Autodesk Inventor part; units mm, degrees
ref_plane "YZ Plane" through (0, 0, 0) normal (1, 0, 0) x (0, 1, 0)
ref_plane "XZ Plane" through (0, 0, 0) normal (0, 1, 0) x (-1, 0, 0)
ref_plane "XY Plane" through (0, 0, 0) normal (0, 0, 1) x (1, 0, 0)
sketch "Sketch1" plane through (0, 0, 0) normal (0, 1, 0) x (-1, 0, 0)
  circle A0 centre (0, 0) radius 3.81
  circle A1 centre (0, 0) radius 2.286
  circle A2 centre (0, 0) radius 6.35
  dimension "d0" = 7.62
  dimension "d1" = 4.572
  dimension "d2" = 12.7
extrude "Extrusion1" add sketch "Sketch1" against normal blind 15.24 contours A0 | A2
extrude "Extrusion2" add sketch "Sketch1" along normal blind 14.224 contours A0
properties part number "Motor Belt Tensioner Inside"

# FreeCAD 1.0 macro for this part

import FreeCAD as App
import Part
import Sketcher
from FreeCAD import Vector
Q = App.Units.Quantity

doc = App.newDocument("Part")
params = doc.addObject("Spreadsheet::Sheet", "Params")
for row, (alias, value) in enumerate([
    ("sketch1_diameter", "0.5 in"),
    ("sketch1_diameter2", "0.18 in"),
    ("pad1_length", "0.6 in"),
    ("sketch2_diameter", "0.3 in"),
    ("sketch2_diameter2", "0.18 in"),
    ("pad2_length", "0.56 in"),
], start=1):
    params.set(f"A{row}", alias)
    params.set(f"B{row}", "=" + value)
    params.setAlias(f"B{row}", alias)

body = doc.addObject("PartDesign::Body", "Body")

# Sketch on XZ plane
sketch1 = body.newObject("Sketcher::SketchObject", "Sketch")
sketch1.AttachmentSupport = (doc.getObject("XZ_Plane"), [""])
sketch1.MapMode = "FlatFace"
sketch1.addGeometry([
    Part.Circle(Vector(0, 0, 0), Vector(0, 0, 1), 6.35),
    Part.Circle(Vector(0, 0, 0), Vector(0, 0, 1), 2.286),
], False)
sketch1.addConstraint([
    Sketcher.Constraint("Coincident", 0, 3, -1, 1),
    Sketcher.Constraint("Coincident", 1, 3, -1, 1),
    Sketcher.Constraint("Diameter", 0, Q("0.5 in")),
    Sketcher.Constraint("Diameter", 1, Q("0.18 in")),
])
sketch1.setExpression("Constraints[2]", "Params.sketch1_diameter")
sketch1.setExpression("Constraints[3]", "Params.sketch1_diameter2")
pad1 = body.newObject("PartDesign::Pad", "Pad")
pad1.Profile = sketch1
pad1.setExpression("Length", "Params.pad1_length")

# Sketch on XZ plane
sketch2 = body.newObject("Sketcher::SketchObject", "Sketch001")
sketch2.AttachmentSupport = (doc.getObject("XZ_Plane"), [""])
sketch2.MapMode = "FlatFace"
sketch2.addGeometry([
    Part.Circle(Vector(0, 0, 0), Vector(0, 0, 1), 3.81),
    Part.Circle(Vector(0, 0, 0), Vector(0, 0, 1), 2.286),
], False)
sketch2.addConstraint([
    Sketcher.Constraint("Coincident", 0, 3, -1, 1),
    Sketcher.Constraint("Coincident", 1, 3, -1, 1),
    Sketcher.Constraint("Diameter", 0, Q("0.3 in")),
    Sketcher.Constraint("Diameter", 1, Q("0.18 in")),
])
sketch2.setExpression("Constraints[2]", "Params.sketch2_diameter")
sketch2.setExpression("Constraints[3]", "Params.sketch2_diameter2")
pad2 = body.newObject("PartDesign::Pad", "Pad001")
pad2.Profile = sketch2
pad2.setExpression("Length", "Params.pad2_length")
pad2.Reversed = True

doc.recompute()
